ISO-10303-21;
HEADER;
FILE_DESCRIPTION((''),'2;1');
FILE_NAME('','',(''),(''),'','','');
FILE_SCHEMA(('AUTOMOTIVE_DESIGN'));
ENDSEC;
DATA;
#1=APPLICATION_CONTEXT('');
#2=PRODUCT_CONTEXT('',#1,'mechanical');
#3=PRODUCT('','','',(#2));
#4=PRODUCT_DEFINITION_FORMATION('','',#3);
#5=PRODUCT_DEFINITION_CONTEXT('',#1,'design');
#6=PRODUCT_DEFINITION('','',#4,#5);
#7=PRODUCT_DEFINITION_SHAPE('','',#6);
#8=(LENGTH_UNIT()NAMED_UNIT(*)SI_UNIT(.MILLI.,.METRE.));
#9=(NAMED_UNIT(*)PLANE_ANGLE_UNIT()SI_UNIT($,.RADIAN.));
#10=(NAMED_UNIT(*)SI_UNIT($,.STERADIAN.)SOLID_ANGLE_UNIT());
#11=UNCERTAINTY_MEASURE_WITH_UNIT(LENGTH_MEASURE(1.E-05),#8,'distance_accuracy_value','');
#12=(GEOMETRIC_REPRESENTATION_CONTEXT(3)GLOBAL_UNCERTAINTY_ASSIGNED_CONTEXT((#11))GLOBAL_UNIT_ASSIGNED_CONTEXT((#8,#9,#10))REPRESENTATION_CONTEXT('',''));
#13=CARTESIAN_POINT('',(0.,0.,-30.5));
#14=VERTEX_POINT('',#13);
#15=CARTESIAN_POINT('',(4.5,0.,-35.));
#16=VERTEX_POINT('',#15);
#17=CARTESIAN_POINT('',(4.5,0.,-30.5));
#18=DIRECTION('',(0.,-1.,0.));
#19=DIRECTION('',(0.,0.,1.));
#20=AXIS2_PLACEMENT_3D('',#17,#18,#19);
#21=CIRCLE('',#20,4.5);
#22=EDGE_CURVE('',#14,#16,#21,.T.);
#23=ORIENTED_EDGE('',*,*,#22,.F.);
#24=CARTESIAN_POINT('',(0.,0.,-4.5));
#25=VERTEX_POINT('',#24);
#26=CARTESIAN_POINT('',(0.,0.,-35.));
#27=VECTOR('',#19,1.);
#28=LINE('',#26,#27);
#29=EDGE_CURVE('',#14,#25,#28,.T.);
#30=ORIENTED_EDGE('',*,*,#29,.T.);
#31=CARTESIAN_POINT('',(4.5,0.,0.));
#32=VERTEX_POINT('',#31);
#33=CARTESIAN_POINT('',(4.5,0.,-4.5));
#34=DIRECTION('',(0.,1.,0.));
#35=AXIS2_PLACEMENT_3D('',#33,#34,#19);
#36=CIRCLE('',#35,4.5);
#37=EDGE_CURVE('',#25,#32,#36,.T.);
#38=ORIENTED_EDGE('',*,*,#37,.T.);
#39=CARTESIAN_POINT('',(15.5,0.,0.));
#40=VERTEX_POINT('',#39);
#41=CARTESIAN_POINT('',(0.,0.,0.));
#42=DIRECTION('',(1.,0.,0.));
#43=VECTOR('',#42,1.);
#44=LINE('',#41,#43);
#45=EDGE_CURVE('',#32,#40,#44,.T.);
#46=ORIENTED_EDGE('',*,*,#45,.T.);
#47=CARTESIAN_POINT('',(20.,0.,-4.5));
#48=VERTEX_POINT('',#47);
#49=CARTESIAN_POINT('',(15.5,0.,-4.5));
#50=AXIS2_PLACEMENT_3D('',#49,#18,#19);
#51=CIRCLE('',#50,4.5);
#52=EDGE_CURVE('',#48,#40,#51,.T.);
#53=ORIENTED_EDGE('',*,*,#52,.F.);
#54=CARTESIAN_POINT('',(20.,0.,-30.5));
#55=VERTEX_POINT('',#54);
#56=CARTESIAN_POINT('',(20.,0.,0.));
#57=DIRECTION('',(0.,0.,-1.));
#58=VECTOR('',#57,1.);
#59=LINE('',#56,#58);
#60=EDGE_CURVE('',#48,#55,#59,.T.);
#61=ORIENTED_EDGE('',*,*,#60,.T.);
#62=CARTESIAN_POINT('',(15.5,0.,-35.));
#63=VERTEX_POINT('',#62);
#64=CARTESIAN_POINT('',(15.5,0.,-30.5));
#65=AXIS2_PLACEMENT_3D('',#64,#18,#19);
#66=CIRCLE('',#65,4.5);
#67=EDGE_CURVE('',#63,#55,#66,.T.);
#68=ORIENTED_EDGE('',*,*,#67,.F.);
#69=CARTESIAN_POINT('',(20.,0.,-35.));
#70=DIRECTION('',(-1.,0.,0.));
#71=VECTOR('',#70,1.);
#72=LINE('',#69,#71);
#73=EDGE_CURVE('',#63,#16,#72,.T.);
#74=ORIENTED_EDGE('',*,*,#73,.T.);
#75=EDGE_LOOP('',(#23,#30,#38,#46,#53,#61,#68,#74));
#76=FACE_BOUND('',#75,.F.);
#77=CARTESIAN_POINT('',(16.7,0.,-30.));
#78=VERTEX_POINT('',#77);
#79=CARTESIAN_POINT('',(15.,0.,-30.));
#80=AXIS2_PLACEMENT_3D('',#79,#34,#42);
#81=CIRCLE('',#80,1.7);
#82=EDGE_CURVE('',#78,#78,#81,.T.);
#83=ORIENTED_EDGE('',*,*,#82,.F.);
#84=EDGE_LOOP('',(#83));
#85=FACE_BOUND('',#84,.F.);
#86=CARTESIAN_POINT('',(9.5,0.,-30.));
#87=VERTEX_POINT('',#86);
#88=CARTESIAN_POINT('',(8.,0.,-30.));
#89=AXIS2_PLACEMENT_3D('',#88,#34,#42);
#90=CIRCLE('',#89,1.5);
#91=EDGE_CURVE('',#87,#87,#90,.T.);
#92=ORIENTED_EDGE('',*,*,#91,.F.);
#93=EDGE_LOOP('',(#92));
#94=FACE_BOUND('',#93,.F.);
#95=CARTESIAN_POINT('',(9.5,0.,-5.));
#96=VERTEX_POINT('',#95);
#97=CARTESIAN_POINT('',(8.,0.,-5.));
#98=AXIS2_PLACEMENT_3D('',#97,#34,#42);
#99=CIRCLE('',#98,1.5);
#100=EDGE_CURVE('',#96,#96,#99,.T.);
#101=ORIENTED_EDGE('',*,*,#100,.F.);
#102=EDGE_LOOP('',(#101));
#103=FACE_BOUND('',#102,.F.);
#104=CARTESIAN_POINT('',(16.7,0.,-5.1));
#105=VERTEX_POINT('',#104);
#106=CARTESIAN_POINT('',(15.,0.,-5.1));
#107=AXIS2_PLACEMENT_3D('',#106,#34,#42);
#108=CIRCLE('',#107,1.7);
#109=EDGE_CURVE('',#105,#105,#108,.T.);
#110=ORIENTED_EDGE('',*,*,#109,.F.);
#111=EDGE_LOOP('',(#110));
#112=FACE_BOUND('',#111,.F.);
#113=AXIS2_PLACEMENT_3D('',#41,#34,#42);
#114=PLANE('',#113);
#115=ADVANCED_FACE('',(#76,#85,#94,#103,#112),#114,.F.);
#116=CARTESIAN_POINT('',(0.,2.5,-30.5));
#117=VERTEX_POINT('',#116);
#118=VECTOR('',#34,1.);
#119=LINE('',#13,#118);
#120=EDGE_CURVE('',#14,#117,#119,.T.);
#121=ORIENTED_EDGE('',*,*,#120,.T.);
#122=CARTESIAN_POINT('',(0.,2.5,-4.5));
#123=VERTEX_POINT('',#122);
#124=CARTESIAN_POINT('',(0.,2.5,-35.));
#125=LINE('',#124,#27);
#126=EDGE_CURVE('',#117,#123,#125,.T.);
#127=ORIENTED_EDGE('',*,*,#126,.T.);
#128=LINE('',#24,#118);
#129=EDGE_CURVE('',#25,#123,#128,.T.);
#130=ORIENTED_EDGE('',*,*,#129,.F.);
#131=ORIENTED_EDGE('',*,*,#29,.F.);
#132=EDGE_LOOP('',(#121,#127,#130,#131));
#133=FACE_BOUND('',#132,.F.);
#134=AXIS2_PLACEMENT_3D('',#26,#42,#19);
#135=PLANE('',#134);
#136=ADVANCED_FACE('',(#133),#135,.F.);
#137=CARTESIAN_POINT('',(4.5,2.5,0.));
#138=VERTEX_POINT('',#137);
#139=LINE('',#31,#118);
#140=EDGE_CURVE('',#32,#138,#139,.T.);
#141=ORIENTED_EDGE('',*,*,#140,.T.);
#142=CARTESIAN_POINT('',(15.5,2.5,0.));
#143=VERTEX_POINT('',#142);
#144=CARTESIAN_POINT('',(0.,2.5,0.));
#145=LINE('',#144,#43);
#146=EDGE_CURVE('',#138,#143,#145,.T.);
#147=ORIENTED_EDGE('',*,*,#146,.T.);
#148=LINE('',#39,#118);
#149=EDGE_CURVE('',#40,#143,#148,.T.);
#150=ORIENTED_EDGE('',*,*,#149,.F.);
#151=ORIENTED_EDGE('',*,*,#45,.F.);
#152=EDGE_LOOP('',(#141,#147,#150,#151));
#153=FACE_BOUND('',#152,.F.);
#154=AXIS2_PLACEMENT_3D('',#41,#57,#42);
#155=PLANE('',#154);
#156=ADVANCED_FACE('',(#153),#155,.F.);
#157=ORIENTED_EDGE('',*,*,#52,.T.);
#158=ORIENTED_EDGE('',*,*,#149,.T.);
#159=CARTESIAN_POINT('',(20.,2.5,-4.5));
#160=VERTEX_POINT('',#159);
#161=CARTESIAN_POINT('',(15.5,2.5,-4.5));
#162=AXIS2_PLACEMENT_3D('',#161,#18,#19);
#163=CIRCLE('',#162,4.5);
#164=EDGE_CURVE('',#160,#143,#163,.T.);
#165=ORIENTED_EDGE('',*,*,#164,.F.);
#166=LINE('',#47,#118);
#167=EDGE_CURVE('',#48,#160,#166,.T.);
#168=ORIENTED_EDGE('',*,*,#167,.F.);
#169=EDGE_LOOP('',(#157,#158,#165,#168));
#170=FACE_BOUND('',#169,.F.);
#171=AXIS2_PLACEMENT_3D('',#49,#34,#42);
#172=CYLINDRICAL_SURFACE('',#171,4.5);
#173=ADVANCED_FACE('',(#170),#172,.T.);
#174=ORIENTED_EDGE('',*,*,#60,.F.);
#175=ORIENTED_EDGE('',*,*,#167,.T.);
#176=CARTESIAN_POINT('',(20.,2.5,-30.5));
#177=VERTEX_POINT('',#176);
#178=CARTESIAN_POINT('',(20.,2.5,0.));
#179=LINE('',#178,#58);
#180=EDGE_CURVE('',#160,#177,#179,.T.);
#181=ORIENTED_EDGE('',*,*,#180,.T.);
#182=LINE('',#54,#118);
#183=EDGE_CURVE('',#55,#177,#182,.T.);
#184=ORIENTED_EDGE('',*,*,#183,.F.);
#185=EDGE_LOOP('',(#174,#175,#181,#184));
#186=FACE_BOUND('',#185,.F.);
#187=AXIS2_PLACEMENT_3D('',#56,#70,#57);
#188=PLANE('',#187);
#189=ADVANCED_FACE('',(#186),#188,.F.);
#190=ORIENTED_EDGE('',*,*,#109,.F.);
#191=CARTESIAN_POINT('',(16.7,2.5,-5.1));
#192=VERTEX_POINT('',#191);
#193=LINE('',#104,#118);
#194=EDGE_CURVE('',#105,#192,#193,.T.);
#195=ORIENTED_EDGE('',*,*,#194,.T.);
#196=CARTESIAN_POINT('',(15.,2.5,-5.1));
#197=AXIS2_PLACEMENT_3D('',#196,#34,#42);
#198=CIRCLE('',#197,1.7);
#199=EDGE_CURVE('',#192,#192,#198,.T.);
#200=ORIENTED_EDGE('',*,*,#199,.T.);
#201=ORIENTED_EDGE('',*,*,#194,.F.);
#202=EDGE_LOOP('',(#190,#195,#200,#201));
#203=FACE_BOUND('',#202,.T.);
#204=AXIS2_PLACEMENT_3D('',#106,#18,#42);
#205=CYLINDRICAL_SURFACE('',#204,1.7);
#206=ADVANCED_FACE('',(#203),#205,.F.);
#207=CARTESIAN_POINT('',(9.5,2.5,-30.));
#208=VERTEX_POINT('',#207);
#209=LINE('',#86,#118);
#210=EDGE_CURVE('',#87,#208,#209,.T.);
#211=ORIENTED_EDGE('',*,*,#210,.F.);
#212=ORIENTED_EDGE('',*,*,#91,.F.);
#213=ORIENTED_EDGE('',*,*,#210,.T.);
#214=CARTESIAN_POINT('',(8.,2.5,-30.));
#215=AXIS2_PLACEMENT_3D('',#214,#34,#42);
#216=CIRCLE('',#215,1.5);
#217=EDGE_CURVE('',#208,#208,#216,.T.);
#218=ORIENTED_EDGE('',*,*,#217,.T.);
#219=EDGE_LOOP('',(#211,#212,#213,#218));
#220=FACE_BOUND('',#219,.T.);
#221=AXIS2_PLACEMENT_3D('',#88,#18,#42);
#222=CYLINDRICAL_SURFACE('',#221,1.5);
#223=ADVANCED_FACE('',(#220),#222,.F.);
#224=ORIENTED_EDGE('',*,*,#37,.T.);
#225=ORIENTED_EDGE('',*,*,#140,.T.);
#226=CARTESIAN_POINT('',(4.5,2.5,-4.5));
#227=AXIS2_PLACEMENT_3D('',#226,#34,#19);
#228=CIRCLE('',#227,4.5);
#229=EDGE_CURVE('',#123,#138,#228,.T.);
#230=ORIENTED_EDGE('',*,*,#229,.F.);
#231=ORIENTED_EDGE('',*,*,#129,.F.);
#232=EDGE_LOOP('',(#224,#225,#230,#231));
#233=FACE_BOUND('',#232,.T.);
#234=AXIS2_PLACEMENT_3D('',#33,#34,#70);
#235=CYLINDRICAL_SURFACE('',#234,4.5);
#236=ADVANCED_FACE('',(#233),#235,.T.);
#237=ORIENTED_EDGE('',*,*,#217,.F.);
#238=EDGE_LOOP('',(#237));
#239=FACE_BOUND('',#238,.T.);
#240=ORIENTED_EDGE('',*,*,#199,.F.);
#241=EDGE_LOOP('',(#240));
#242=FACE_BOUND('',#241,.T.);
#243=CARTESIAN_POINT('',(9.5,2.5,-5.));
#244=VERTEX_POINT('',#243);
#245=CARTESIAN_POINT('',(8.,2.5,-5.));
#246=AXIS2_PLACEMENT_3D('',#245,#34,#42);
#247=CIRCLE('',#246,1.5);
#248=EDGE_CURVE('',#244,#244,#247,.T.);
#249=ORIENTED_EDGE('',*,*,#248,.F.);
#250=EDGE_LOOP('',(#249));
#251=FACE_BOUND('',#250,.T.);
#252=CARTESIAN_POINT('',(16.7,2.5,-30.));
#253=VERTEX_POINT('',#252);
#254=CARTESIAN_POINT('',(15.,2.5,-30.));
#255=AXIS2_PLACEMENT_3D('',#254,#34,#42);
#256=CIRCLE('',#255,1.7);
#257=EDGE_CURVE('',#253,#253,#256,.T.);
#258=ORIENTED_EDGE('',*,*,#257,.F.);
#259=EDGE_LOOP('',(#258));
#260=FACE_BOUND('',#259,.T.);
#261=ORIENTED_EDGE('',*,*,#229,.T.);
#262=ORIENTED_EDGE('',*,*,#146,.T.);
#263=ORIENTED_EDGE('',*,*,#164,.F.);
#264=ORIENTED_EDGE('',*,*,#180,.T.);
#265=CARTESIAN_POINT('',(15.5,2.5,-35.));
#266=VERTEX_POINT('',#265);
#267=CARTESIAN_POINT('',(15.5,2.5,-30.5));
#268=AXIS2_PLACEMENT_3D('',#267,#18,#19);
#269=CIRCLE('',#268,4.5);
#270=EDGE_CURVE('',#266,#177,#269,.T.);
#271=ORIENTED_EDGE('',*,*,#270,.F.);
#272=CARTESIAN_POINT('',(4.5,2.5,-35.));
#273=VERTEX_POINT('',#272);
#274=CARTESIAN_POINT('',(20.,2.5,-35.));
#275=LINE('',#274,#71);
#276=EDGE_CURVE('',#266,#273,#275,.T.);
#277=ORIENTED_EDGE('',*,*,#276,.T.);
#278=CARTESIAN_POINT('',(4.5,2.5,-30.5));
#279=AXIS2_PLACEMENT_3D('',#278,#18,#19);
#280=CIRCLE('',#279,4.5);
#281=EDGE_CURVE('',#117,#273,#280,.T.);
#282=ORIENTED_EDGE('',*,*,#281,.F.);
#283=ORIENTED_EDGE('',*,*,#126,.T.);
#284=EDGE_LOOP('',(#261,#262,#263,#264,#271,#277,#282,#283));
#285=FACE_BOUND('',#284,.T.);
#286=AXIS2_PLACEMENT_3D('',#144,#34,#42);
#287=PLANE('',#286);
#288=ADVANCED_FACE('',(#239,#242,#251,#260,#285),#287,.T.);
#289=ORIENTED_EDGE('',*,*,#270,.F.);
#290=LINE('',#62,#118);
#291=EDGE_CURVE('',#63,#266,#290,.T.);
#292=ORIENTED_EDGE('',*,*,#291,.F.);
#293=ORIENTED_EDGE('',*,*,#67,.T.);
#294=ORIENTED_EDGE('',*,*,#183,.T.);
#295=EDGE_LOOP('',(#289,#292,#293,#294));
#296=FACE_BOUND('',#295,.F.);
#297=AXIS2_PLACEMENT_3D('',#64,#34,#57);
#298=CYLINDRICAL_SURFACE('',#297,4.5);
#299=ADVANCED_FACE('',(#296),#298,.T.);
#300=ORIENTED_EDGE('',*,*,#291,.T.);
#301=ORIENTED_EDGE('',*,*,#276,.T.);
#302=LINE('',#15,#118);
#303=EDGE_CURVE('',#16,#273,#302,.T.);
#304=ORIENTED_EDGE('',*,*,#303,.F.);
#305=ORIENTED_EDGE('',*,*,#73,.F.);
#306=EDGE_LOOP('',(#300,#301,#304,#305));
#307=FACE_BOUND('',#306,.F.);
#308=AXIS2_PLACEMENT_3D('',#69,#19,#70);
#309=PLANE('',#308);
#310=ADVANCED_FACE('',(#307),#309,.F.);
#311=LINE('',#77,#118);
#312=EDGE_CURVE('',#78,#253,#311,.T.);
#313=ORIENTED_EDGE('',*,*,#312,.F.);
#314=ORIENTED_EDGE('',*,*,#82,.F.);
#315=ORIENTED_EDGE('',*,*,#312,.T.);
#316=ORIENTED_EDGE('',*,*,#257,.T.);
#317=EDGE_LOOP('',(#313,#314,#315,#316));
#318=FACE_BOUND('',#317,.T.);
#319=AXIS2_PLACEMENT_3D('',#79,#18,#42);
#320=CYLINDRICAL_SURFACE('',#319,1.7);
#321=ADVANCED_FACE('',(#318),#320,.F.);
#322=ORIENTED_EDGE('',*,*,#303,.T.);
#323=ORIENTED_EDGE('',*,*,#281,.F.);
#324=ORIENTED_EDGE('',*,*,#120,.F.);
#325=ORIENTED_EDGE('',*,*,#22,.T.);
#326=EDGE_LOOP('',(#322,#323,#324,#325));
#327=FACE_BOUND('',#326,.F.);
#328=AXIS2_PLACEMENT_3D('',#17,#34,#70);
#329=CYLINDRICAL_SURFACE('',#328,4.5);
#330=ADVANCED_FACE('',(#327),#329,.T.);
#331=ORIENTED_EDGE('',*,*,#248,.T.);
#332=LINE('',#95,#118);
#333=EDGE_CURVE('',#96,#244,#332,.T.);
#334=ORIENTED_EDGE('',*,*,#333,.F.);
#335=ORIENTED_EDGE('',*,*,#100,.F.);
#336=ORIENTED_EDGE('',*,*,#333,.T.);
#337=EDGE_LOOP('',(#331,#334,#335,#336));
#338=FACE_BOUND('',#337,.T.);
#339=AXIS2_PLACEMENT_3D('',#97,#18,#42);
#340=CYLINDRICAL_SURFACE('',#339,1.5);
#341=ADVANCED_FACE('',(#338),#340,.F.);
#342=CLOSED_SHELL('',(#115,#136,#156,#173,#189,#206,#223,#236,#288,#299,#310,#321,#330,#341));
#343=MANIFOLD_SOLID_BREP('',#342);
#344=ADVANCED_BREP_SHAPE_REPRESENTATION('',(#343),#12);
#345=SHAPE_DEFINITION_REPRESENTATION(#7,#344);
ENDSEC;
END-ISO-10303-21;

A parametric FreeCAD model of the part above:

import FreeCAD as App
import Part
import Sketcher
Q = App.Units.Quantity


def edges_at(feature, points):
    """Names of the edges that pass closest to the given points."""
    edges = feature.Shape.Edges
    near = lambda p: min(range(len(edges)), key=lambda i: edges[i].distToShape(Part.Vertex(*p))[0])
    return sorted({f"Edge{near(p) + 1}" for p in points})


def add_polygon(sketch, points):
    """Adds a closed chain of lines whose ends are joined by coincident constraints."""
    first, n = sketch.GeometryCount, len(points)
    for a, b in zip(points, points[1:] + points[:1]):
        sketch.addGeometry(Part.LineSegment(App.Vector(*a, 0), App.Vector(*b, 0)), False)
    for i in range(n):
        sketch.addConstraint(Sketcher.Constraint("Coincident", first + i, 2, first + (i + 1) % n, 1))

doc = App.newDocument("Part")
params = doc.addObject("Spreadsheet::Sheet", "Params")
for row, (alias, value) in enumerate([
    ("sketch1_diameter", "3 mm"),
    ("sketch1_diameter2", "3.4 mm"),
    ("sketch1_width", "20 mm"),
    ("sketch1_height", "35 mm"),
    ("pad1_length", "2.5 mm"),
    ("fillet_radius", "4.5 mm"),
], start=1):
    params.set(f"A{row}", alias)
    params.set(f"B{row}", "=" + value)
    params.setAlias(f"B{row}", alias)

body = doc.addObject("PartDesign::Body", "Body")

# Sketch on XZ plane
sketch1 = body.newObject("Sketcher::SketchObject", "Sketch")
sketch1.AttachmentSupport = (doc.getObject("XZ_Plane"), [""])
sketch1.MapMode = "FlatFace"
add_polygon(sketch1, [(0, -35), (0, 0), (20, 0), (20, -35)])  # lines 0-3
sketch1.addGeometry(Part.Circle(App.Vector(8, -5, 0), App.Vector(0, 0, 1), 1.5), False)  # 4
sketch1.addGeometry(Part.Circle(App.Vector(15, -5.1, 0), App.Vector(0, 0, 1), 1.7), False)  # 5
sketch1.addGeometry(Part.Circle(App.Vector(8, -30, 0), App.Vector(0, 0, 1), 1.5), False)  # 6
sketch1.addGeometry(Part.Circle(App.Vector(15, -30, 0), App.Vector(0, 0, 1), 1.7), False)  # 7
sketch1.addConstraint(Sketcher.Constraint("Vertical", 0))
sketch1.addConstraint(Sketcher.Constraint("Horizontal", 1))
sketch1.addConstraint(Sketcher.Constraint("Vertical", 2))
sketch1.addConstraint(Sketcher.Constraint("Horizontal", 3))
sketch1.addConstraint(Sketcher.Constraint("Coincident", 0, 2, -1, 1))
sketch1.addConstraint(Sketcher.Constraint("Equal", 4, 6))
sketch1.addConstraint(Sketcher.Constraint("Equal", 5, 7))
sketch1.addConstraint(Sketcher.Constraint("Horizontal", 6, 3, 7, 3))
sketch1.addConstraint(Sketcher.Constraint("Vertical", 4, 3, 6, 3))
sketch1.addConstraint(Sketcher.Constraint("Vertical", 5, 3, 7, 3))
sketch1.addConstraint(Sketcher.Constraint("Diameter", 4, Q("3 mm")))
sketch1.addConstraint(Sketcher.Constraint("Diameter", 5, Q("3.4 mm")))
sketch1.addConstraint(Sketcher.Constraint("DistanceX", 1, 1, 1, 2, Q("20 mm")))
sketch1.addConstraint(Sketcher.Constraint("DistanceY", 0, 1, 0, 2, Q("35 mm")))
sketch1.addConstraint(Sketcher.Constraint("DistanceY", 4, 3, -1, 1, Q("5 mm")))
sketch1.addConstraint(Sketcher.Constraint("DistanceX", 4, 3, 5, 3, Q("7 mm")))
sketch1.addConstraint(Sketcher.Constraint("DistanceY", 6, 3, 4, 3, Q("25 mm")))
sketch1.addConstraint(Sketcher.Constraint("DistanceX", 5, 3, 1, 2, Q("5 mm")))
sketch1.addConstraint(Sketcher.Constraint("DistanceY", 5, 3, -1, 1, Q("5.1 mm")))
sketch1.setExpression("Constraints[14]", "Params.sketch1_diameter")
sketch1.setExpression("Constraints[15]", "Params.sketch1_diameter2")
sketch1.setExpression("Constraints[16]", "Params.sketch1_width")
sketch1.setExpression("Constraints[17]", "Params.sketch1_height")
pad1 = body.newObject("PartDesign::Pad", "Pad")
pad1.Profile = sketch1
pad1.setExpression("Length", "Params.pad1_length")
pad1.Reversed = True
doc.recompute()

fillet = body.newObject("PartDesign::Fillet", "Fillet")
fillet.Base = (pad1, edges_at(pad1, [
    (0, 1.25, 0),
    (20, 1.25, 0),
    (20, 1.25, -35),
    (0, 1.25, -35),
]))
fillet.setExpression("Radius", "Params.fillet_radius")

doc.recompute()
